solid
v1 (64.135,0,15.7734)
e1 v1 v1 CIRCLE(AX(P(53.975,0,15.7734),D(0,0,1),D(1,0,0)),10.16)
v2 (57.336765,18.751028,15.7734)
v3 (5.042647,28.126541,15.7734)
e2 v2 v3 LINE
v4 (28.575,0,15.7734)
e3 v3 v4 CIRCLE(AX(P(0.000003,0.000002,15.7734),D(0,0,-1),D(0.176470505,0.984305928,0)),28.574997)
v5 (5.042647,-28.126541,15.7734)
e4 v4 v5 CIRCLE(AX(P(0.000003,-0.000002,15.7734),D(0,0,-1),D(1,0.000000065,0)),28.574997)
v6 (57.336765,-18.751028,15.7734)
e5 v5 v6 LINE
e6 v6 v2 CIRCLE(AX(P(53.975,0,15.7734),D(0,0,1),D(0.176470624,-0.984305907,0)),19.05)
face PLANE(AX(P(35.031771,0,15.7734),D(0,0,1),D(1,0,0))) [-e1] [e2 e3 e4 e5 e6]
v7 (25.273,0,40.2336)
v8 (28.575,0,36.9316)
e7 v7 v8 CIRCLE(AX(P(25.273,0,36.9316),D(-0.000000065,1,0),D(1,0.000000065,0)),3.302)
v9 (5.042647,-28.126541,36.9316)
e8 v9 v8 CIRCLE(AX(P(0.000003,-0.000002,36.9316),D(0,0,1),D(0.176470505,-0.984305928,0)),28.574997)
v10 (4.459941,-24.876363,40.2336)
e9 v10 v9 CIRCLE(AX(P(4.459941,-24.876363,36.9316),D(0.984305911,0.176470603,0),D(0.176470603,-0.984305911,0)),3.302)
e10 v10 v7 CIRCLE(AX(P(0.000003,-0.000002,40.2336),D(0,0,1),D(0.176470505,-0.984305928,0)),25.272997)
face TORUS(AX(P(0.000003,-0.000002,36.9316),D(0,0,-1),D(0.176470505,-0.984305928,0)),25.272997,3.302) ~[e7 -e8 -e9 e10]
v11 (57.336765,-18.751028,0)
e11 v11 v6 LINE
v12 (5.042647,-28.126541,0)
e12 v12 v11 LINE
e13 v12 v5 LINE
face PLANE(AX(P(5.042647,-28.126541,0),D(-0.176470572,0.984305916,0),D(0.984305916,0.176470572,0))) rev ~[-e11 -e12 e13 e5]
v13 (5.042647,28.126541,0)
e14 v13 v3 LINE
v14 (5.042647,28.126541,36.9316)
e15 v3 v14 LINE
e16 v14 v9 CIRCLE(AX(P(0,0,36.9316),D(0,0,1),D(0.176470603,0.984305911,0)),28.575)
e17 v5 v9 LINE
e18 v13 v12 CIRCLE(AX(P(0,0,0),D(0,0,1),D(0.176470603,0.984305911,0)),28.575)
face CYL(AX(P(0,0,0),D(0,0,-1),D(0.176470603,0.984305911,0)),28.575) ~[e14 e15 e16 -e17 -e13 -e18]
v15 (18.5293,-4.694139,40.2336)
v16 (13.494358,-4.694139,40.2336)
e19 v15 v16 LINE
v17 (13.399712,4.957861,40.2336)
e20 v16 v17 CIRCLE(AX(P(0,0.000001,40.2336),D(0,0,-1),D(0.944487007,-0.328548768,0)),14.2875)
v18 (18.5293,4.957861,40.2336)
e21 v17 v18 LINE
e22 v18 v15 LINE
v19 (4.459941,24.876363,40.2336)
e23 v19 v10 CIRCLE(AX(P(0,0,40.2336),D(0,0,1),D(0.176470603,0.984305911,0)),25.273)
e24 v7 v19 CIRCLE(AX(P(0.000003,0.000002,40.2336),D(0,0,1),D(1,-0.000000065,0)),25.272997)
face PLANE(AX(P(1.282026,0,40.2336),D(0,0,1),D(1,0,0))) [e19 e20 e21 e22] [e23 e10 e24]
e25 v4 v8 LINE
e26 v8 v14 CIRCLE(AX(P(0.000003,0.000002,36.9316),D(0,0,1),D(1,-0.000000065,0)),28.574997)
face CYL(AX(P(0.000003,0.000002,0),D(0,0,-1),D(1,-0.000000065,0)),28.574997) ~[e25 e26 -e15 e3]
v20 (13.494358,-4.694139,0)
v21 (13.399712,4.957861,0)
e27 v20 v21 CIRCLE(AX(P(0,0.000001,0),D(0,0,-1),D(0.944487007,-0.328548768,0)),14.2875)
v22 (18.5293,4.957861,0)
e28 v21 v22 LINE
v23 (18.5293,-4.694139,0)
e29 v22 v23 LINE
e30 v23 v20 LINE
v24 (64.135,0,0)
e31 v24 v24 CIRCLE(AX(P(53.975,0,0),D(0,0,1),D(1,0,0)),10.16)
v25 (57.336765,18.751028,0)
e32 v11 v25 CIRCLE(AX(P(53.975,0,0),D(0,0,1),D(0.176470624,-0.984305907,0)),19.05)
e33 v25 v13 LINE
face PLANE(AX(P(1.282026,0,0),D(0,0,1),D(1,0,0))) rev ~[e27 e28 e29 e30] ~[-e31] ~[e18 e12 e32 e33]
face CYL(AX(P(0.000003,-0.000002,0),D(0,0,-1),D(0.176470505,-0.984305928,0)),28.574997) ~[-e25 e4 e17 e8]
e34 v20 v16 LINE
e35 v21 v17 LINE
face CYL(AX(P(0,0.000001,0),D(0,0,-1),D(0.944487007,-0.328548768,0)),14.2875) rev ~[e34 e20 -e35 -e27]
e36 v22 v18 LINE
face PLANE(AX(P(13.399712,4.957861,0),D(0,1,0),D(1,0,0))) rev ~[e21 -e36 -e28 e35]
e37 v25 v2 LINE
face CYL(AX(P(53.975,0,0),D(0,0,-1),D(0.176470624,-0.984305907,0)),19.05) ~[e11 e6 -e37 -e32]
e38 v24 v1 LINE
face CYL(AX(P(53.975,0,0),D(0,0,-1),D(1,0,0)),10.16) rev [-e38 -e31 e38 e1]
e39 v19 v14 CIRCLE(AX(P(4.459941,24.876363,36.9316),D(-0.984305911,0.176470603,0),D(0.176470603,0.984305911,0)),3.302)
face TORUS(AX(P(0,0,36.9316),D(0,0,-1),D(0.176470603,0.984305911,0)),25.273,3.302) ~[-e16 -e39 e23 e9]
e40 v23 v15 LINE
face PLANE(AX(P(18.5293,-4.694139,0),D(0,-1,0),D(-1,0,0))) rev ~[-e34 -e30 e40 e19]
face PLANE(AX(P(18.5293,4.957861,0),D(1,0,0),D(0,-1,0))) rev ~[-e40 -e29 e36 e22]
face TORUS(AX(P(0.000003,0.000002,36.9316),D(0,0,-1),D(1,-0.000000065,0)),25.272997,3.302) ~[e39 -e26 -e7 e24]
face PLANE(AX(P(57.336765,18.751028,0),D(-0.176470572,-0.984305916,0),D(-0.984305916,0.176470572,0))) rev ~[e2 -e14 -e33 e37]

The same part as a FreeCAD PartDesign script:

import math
import FreeCAD as App
import Part
import Sketcher
from FreeCAD import Vector
Q = App.Units.Quantity


def edges_at(feature, points):
    """Names of the edges that pass closest to the given points."""
    edges = feature.Shape.Edges
    near = lambda p: min(range(len(edges)), key=lambda i: edges[i].distToShape(Part.Vertex(*p))[0])
    return sorted({f"Edge{near(p) + 1}" for p in points})

doc = App.newDocument("Part")
params = doc.addObject("Spreadsheet::Sheet", "Params")
for row, (alias, value) in enumerate([
    ("sketch1_diameter", "0.8 in"),
    ("sketch1_radius", "0.75 in"),
    ("sketch1_radius2", "1.1249999 in"),
    ("pad1_length", "0.621 in"),
    ("sketch2_radius", "1.1249999 in"),
    ("sketch2_radius2", "0.5625 in"),
    ("sketch2_height", "0.38 in"),
    ("pad2_length", "1.584 in"),
    ("fillet_radius", "0.13 in"),
], start=1):
    params.set(f"A{row}", alias)
    params.set(f"B{row}", "=" + value)
    params.setAlias(f"B{row}", alias)

body = doc.addObject("PartDesign::Body", "Body")

# Sketch on XY plane
sketch1 = body.newObject("Sketcher::SketchObject", "Sketch")
sketch1.AttachmentSupport = (doc.getObject("XY_Plane"), [""])
sketch1.MapMode = "FlatFace"
sketch1.addGeometry([
    Part.ArcOfCircle(Part.Circle(Vector(0, 0, 0), Vector(0, 0, 1), 29), math.radians(0), math.radians(80)),  # 0
    Part.ArcOfCircle(Part.Circle(Vector(0, 0, 0), Vector(0, 0, 1), 29), math.radians(-80), math.radians(0)),  # 1
    Part.LineSegment(Vector(5, -28, 0), Vector(57, -19, 0)),  # 2
    Part.ArcOfCircle(Part.Circle(Vector(54, 0, 0), Vector(0, 0, 1), 19), math.radians(-80), math.radians(80)),  # 3
    Part.LineSegment(Vector(57, 19, 0), Vector(5, 28, 0)),  # 4
    Part.Circle(Vector(54, 0, 0), Vector(0, 0, 1), 10),  # 5
], False)
sketch1.addConstraint([
    Sketcher.Constraint("Tangent", 0, 1, 1, 2),
    Sketcher.Constraint("Tangent", 1, 1, 2, 1),
    Sketcher.Constraint("Tangent", 2, 2, 3, 1),
    Sketcher.Constraint("Tangent", 3, 2, 4, 1),
    Sketcher.Constraint("Tangent", 4, 2, 0, 2),
    Sketcher.Constraint("Coincident", 0, 3, -1, 1),
    Sketcher.Constraint("Coincident", 5, 3, 3, 3),
    Sketcher.Constraint("Equal", 0, 1),
    Sketcher.Constraint("PointOnObject", 3, 3, -1),
    Sketcher.Constraint("PointOnObject", 0, 1, -1),
    Sketcher.Constraint("Diameter", 5, Q("0.8 in")),
    Sketcher.Constraint("Radius", 3, Q("0.75 in")),
    Sketcher.Constraint("Radius", 0, Q("1.1249999 in")),
    Sketcher.Constraint("DistanceX", 0, 1, 3, 3, Q("1 in")),
])
sketch1.setExpression("Constraints[10]", "Params.sketch1_diameter")
sketch1.setExpression("Constraints[11]", "Params.sketch1_radius")
sketch1.setExpression("Constraints[12]", "Params.sketch1_radius2")
pad1 = body.newObject("PartDesign::Pad", "Pad")
pad1.Profile = sketch1
pad1.setExpression("Length", "Params.pad1_length")

# Sketch on XY plane
sketch2 = body.newObject("Sketcher::SketchObject", "Sketch001")
sketch2.AttachmentSupport = (doc.getObject("XY_Plane"), [""])
sketch2.MapMode = "FlatFace"
sketch2.addGeometry([
    Part.ArcOfCircle(Part.Circle(Vector(0, 0, 0), Vector(0, 0, 1), 29), math.radians(-80), math.radians(0)),  # 0
    Part.ArcOfCircle(Part.Circle(Vector(0, 0, 0), Vector(0, 0, 1), 29), math.radians(0), math.radians(80)),  # 1
    Part.ArcOfCircle(Part.Circle(Vector(0, 0, 0), Vector(0, 0, 1), 29), math.radians(80), math.radians(280)),  # 2
    Part.LineSegment(Vector(19, -5, 0), Vector(13, -5, 0)),  # 3
    Part.ArcOfCircle(Part.Circle(Vector(0, 0, 0), Vector(0, 0, 1), 14), math.radians(20), math.radians(341)),  # 4
    Part.LineSegment(Vector(13, 5, 0), Vector(19, 5, 0)),  # 5
    Part.LineSegment(Vector(19, 5, 0), Vector(19, -5, 0)),  # 6
], False)
sketch2.addConstraint([
    Sketcher.Constraint("Tangent", 0, 2, 1, 1),
    Sketcher.Constraint("Tangent", 1, 2, 2, 1),
    Sketcher.Constraint("Tangent", 2, 2, 0, 1),
    Sketcher.Constraint("Coincident", 3, 2, 4, 2),
    Sketcher.Constraint("Coincident", 4, 1, 5, 1),
    Sketcher.Constraint("Coincident", 5, 2, 6, 1),
    Sketcher.Constraint("Coincident", 6, 2, 3, 1),
    Sketcher.Constraint("Horizontal", 3),
    Sketcher.Constraint("Horizontal", 5),
    Sketcher.Constraint("Vertical", 6),
    Sketcher.Constraint("Coincident", 0, 3, -1, 1),
    Sketcher.Constraint("Coincident", 4, 3, -1, 1),
    Sketcher.Constraint("PointOnObject", 0, 2, -1),
    Sketcher.Constraint("Vertical", 1, 2, 2, 2),
    Sketcher.Constraint("Radius", 0, Q("1.1249999 in")),
    Sketcher.Constraint("Radius", 4, Q("0.5625 in")),
    Sketcher.Constraint("DistanceY", 6, 2, 6, 1, Q("0.38 in")),
    Sketcher.Constraint("DistanceX", -1, 1, 5, 2, Q("0.7295 in")),
    Sketcher.Constraint("DistanceX", 3, 2, 3, 1, 5.034942),
    Sketcher.Constraint("DistanceY", -1, 1, 1, 2, 28.126541),
])
sketch2.setExpression("Constraints[14]", "Params.sketch2_radius")
sketch2.setExpression("Constraints[15]", "Params.sketch2_radius2")
sketch2.setExpression("Constraints[16]", "Params.sketch2_height")
pad2 = body.newObject("PartDesign::Pad", "Pad001")
pad2.Profile = sketch2
pad2.setExpression("Length", "Params.pad2_length")
doc.recompute()

fillet = body.newObject("PartDesign::Fillet", "Fillet")
fillet.Base = (pad2, edges_at(pad2, [(-28.575, 0, 40.234)]))
fillet.setExpression("Radius", "Params.fillet_radius")

doc.recompute()
